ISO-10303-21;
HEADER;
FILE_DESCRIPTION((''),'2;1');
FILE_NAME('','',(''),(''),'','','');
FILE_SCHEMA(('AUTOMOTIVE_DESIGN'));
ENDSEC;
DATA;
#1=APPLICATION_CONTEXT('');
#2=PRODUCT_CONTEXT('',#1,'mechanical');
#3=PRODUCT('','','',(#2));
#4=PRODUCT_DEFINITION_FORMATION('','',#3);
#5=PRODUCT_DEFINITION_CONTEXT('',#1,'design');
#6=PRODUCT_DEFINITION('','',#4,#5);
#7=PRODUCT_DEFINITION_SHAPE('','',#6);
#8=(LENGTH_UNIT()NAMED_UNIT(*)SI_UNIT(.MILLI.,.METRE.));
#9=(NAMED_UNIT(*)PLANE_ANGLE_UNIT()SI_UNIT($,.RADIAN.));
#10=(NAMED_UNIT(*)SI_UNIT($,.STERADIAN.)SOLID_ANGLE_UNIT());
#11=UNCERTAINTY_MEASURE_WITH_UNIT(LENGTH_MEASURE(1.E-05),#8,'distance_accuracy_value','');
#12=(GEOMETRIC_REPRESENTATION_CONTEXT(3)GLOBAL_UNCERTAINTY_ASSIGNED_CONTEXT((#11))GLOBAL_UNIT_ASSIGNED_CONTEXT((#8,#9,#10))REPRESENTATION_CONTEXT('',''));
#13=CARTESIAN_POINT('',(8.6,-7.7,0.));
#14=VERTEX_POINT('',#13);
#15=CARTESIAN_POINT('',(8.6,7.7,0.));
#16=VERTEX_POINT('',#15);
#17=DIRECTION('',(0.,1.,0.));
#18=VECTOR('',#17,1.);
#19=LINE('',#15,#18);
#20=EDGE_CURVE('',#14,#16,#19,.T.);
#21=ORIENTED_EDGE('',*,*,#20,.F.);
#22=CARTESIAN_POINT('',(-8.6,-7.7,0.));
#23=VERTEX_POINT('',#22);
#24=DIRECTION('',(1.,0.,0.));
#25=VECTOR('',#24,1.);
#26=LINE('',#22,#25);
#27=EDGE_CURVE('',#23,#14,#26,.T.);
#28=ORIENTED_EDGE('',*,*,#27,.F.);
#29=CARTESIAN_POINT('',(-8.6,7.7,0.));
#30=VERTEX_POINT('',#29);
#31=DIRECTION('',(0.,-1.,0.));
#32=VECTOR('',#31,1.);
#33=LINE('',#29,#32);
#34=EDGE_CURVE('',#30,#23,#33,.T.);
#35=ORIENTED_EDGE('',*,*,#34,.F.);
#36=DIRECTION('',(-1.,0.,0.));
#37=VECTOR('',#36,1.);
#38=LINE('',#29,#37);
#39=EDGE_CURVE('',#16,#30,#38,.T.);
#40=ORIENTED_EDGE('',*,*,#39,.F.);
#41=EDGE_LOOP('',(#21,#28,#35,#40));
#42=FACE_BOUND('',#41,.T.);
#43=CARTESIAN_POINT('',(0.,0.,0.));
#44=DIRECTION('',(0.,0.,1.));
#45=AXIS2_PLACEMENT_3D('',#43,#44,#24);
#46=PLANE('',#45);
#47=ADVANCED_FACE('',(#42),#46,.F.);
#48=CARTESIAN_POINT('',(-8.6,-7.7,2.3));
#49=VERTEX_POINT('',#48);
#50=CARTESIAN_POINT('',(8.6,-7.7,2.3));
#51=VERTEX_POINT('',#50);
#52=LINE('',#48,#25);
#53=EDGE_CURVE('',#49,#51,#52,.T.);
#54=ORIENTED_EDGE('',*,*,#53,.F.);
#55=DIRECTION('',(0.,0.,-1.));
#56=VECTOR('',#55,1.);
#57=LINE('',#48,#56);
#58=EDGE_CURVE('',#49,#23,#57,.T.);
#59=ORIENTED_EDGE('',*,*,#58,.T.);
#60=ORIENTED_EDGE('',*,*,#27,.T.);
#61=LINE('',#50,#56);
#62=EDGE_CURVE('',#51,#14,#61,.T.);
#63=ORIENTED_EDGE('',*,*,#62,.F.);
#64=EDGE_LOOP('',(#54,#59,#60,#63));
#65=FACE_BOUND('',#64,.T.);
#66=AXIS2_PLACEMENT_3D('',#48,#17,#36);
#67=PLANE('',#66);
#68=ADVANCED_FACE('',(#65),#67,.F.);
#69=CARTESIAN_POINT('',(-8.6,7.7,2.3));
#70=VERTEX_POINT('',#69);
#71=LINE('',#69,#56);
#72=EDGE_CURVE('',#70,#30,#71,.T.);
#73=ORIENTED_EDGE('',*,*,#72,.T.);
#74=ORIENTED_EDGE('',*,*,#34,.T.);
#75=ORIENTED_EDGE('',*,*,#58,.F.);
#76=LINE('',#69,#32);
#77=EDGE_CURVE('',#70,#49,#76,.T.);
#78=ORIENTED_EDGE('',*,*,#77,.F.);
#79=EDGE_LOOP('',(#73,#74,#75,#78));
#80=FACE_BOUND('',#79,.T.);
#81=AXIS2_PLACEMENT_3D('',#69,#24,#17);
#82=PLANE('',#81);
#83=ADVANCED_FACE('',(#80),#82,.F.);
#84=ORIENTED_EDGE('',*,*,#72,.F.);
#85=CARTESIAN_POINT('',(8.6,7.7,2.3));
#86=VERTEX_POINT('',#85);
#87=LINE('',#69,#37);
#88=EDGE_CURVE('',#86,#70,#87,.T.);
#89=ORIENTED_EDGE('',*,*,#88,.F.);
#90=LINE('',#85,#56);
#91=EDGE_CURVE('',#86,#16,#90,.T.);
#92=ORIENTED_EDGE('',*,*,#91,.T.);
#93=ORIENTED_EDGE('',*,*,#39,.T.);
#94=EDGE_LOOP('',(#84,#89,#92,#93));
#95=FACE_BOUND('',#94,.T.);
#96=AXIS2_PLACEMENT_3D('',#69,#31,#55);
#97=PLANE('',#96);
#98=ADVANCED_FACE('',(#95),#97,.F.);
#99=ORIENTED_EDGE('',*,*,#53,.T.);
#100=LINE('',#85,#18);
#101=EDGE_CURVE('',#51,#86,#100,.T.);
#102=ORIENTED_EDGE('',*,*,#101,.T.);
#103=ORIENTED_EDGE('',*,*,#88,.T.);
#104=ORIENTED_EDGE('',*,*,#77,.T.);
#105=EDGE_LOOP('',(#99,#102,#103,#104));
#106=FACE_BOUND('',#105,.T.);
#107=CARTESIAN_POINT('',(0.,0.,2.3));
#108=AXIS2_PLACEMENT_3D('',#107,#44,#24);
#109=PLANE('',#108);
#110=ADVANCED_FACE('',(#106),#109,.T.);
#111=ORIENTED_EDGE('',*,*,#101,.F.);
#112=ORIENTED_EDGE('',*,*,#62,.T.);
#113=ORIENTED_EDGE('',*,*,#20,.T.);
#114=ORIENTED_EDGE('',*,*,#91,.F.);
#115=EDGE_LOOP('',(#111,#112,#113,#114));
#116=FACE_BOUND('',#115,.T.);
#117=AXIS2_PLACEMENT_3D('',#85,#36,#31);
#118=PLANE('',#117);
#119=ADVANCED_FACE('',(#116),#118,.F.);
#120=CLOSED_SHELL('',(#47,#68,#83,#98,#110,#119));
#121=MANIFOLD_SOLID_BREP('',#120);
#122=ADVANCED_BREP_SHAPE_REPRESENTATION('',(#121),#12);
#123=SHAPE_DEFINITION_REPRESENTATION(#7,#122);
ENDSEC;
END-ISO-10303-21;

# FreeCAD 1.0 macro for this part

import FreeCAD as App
import Part
import Sketcher

V = App.Vector
Q = App.Units.Quantity


def add_polygon(sketch, points):
    """Adds a closed chain of lines whose ends are joined by coincident constraints."""
    first, n = sketch.GeometryCount, len(points)
    for a, b in zip(points, points[1:] + points[:1]):
        sketch.addGeometry(Part.LineSegment(App.Vector(*a, 0), App.Vector(*b, 0)), False)
    for i in range(n):
        sketch.addConstraint(Sketcher.Constraint("Coincident", first + i, 2, first + (i + 1) % n, 1))

doc = App.newDocument("Part")
params = doc.addObject("Spreadsheet::Sheet", "Params")
for row, (alias, value) in enumerate([
    ("sketch1_width", "17.2 mm"),
    ("sketch1_height", "15.4 mm"),
    ("pad1_length", "2.3 mm"),
], start=1):
    params.set(f"A{row}", alias)
    params.set(f"B{row}", "=" + value)
    params.setAlias(f"B{row}", alias)

body = doc.addObject("PartDesign::Body", "Body")

sketch1 = body.newObject("Sketcher::SketchObject", "Sketch")
sketch1.AttachmentSupport = (doc.getObject("XY_Plane"), [""])
sketch1.MapMode = "FlatFace"
add_polygon(sketch1, [(-9, 8), (-9, -8), (9, -8), (9, 8)])
sketch1.addConstraint([
    Sketcher.Constraint("Vertical", 0),
    Sketcher.Constraint("Horizontal", 1),
    Sketcher.Constraint("Vertical", 2),
    Sketcher.Constraint("Horizontal", 3),
    Sketcher.Constraint("Symmetric", 0, 2, 2, 2, -1, 1),
    Sketcher.Constraint("DistanceX", 1, 1, 1, 2, Q("17.2 mm")),
    Sketcher.Constraint("DistanceY", 0, 2, 0, 1, Q("15.4 mm")),
])
sketch1.setExpression("Constraints[9]", "Params.sketch1_width")
sketch1.setExpression("Constraints[10]", "Params.sketch1_height")
pad1 = body.newObject("PartDesign::Pad", "Pad")
pad1.Profile = sketch1
pad1.setExpression("Length", "Params.pad1_length")

doc.recompute()
